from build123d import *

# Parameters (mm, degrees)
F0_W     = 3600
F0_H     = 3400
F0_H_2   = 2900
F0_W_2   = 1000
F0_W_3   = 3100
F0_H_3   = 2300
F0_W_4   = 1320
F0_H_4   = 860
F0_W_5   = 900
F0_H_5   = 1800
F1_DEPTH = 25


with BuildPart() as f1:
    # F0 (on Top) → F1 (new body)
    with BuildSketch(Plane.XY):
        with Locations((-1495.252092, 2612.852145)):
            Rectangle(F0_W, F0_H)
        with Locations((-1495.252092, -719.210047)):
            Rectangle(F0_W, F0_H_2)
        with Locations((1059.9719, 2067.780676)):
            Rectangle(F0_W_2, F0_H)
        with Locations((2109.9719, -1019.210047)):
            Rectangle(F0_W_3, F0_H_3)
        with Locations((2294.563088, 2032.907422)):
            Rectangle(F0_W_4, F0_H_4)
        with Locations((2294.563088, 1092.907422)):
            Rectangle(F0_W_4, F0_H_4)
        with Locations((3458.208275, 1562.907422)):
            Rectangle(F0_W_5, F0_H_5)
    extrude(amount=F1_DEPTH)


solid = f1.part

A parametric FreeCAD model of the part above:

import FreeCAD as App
import Part
import Sketcher


def add_polygon(sketch, points):
    """Adds a closed chain of lines whose ends are joined by coincident constraints."""
    first, n = sketch.GeometryCount, len(points)
    for a, b in zip(points, points[1:] + points[:1]):
        sketch.addGeometry(Part.LineSegment(App.Vector(*a, 0), App.Vector(*b, 0)), False)
    for i in range(n):
        sketch.addConstraint(Sketcher.Constraint("Coincident", first + i, 2, first + (i + 1) % n, 1))

doc = App.newDocument("Part")
params = doc.addObject("Spreadsheet::Sheet", "Params")
for row, (alias, value) in enumerate([
    ("sketch1_width", "3600 mm"),
    ("sketch1_width2", "1000 mm"),
    ("sketch1_width3", "3100 mm"),
    ("sketch1_width4", "1320 mm"),
    ("sketch1_width5", "900 mm"),
    ("pad1_length", "25 mm"),
], start=1):
    params.set(f"A{row}", alias)
    params.set(f"B{row}", "=" + value)
    params.setAlias(f"B{row}", alias)

body = doc.addObject("PartDesign::Body", "Body")
body.AllowCompound = True

sketch1 = doc.addObject("Sketcher::SketchObject", "Sketch")
body.addObject(sketch1)
sketch1.AttachmentSupport = (doc.XY_Plane, [""])
sketch1.MapMode = "FlatFace"
add_polygon(sketch1, [(-3295, 4313), (-3295, 913), (305, 913), (305, 4313)])
add_polygon(sketch1, [(-3295, 731), (-3295, -2169), (305, -2169), (305, 731)])
add_polygon(sketch1, [(560, 3768), (560, 368), (1560, 368), (1560, 3768)])
add_polygon(sketch1, [(560, 131), (560, -2169), (3660, -2169), (3660, 131)])
add_polygon(sketch1, [(1635, 2463), (1635, 1603), (2955, 1603), (2955, 2463)])
add_polygon(sketch1, [(1635, 1523), (1635, 663), (2955, 663), (2955, 1523)])
add_polygon(sketch1, [(3008, 2463), (3008, 663), (3908, 663), (3908, 2463)])
sketch1.addConstraint(Sketcher.Constraint("Vertical", 0))
sketch1.addConstraint(Sketcher.Constraint("Horizontal", 1))
sketch1.addConstraint(Sketcher.Constraint("Vertical", 2))
sketch1.addConstraint(Sketcher.Constraint("Horizontal", 3))
sketch1.addConstraint(Sketcher.Constraint("Vertical", 4))
sketch1.addConstraint(Sketcher.Constraint("Horizontal", 5))
sketch1.addConstraint(Sketcher.Constraint("Vertical", 6))
sketch1.addConstraint(Sketcher.Constraint("Horizontal", 7))
sketch1.addConstraint(Sketcher.Constraint("Vertical", 8))
sketch1.addConstraint(Sketcher.Constraint("Horizontal", 9))
sketch1.addConstraint(Sketcher.Constraint("Vertical", 10))
sketch1.addConstraint(Sketcher.Constraint("Horizontal", 11))
sketch1.addConstraint(Sketcher.Constraint("Vertical", 12))
sketch1.addConstraint(Sketcher.Constraint("Horizontal", 13))
sketch1.addConstraint(Sketcher.Constraint("Vertical", 14))
sketch1.addConstraint(Sketcher.Constraint("Horizontal", 15))
sketch1.addConstraint(Sketcher.Constraint("Vertical", 16))
sketch1.addConstraint(Sketcher.Constraint("Horizontal", 17))
sketch1.addConstraint(Sketcher.Constraint("Vertical", 18))
sketch1.addConstraint(Sketcher.Constraint("Horizontal", 19))
sketch1.addConstraint(Sketcher.Constraint("Vertical", 20))
sketch1.addConstraint(Sketcher.Constraint("Horizontal", 21))
sketch1.addConstraint(Sketcher.Constraint("Vertical", 22))
sketch1.addConstraint(Sketcher.Constraint("Horizontal", 23))
sketch1.addConstraint(Sketcher.Constraint("Vertical", 24))
sketch1.addConstraint(Sketcher.Constraint("Horizontal", 25))
sketch1.addConstraint(Sketcher.Constraint("Vertical", 26))
sketch1.addConstraint(Sketcher.Constraint("Horizontal", 27))
sketch1.addConstraint(Sketcher.Constraint("Horizontal", 5, 2, 12, 2))
sketch1.addConstraint(Sketcher.Constraint("Horizontal", 21, 2, 24, 2))
sketch1.addConstraint(Sketcher.Constraint("Horizontal", 19, 2, 26, 2))
sketch1.addConstraint(Sketcher.Constraint("Vertical", 3, 2, 4, 2))
sketch1.addConstraint(Sketcher.Constraint("Vertical", 2, 2, 5, 2))
sketch1.addConstraint(Sketcher.Constraint("Vertical", 11, 2, 12, 2))
sketch1.addConstraint(Sketcher.Constraint("Vertical", 19, 2, 20, 2))
sketch1.addConstraint(Sketcher.Constraint("Vertical", 18, 2, 21, 2))
sketch1.addConstraint(Sketcher.Constraint("Equal", 2, 8))
sketch1.addConstraint(Sketcher.Constraint("Equal", 18, 20))
sketch1.addConstraint(Sketcher.Constraint("DistanceX", 1, 1, 1, 2, 3600.0))
sketch1.addConstraint(Sketcher.Constraint("DistanceX", 9, 1, 9, 2, 1000.0))
sketch1.addConstraint(Sketcher.Constraint("DistanceX", 13, 1, 13, 2, 3100.0))
sketch1.addConstraint(Sketcher.Constraint("DistanceX", 17, 1, 17, 2, 1320.0))
sketch1.addConstraint(Sketcher.Constraint("DistanceX", 25, 1, 25, 2, 900.0))
sketch1.addConstraint(Sketcher.Constraint("DistanceY", 0, 2, 0, 1, 3400.0))
sketch1.addConstraint(Sketcher.Constraint("DistanceY", 4, 2, 4, 1, 2900.0))
sketch1.addConstraint(Sketcher.Constraint("DistanceY", 12, 2, 12, 1, 2300.0))
sketch1.addConstraint(Sketcher.Constraint("DistanceY", 16, 2, 16, 1, 860.0))
sketch1.addConstraint(Sketcher.Constraint("DistanceY", 24, 2, 24, 1, 1800.0))
sketch1.addConstraint(Sketcher.Constraint("DistanceX", -1, 1, 8, 2, 559.9719))
sketch1.addConstraint(Sketcher.Constraint("DistanceX", -1, 1, 1, 2, 304.747908))
sketch1.addConstraint(Sketcher.Constraint("DistanceX", -1, 1, 16, 2, 1634.563088))
sketch1.addConstraint(Sketcher.Constraint("DistanceY", -1, 1, 16, 2, 1602.907422))
sketch1.addConstraint(Sketcher.Constraint("DistanceY", 4, 2, 0, 2, 3082.062192))
sketch1.addConstraint(Sketcher.Constraint("DistanceY", 8, 2, 1, 2, 545.071469))
sketch1.addConstraint(Sketcher.Constraint("DistanceY", 6, 2, 16, 2, 872.117469))
sketch1.addConstraint(Sketcher.Constraint("DistanceX", -1, 1, 24, 2, 3008.208275))
sketch1.setExpression("Constraints[66]", "Params.sketch1_width")
sketch1.setExpression("Constraints[67]", "Params.sketch1_width2")
sketch1.setExpression("Constraints[68]", "Params.sketch1_width3")
sketch1.setExpression("Constraints[69]", "Params.sketch1_width4")
sketch1.setExpression("Constraints[70]", "Params.sketch1_width5")
pad1 = doc.addObject("PartDesign::Pad", "Pad")
body.addObject(pad1)
pad1.Profile = sketch1
pad1.setExpression("Length", "Params.pad1_length")

doc.recompute()
